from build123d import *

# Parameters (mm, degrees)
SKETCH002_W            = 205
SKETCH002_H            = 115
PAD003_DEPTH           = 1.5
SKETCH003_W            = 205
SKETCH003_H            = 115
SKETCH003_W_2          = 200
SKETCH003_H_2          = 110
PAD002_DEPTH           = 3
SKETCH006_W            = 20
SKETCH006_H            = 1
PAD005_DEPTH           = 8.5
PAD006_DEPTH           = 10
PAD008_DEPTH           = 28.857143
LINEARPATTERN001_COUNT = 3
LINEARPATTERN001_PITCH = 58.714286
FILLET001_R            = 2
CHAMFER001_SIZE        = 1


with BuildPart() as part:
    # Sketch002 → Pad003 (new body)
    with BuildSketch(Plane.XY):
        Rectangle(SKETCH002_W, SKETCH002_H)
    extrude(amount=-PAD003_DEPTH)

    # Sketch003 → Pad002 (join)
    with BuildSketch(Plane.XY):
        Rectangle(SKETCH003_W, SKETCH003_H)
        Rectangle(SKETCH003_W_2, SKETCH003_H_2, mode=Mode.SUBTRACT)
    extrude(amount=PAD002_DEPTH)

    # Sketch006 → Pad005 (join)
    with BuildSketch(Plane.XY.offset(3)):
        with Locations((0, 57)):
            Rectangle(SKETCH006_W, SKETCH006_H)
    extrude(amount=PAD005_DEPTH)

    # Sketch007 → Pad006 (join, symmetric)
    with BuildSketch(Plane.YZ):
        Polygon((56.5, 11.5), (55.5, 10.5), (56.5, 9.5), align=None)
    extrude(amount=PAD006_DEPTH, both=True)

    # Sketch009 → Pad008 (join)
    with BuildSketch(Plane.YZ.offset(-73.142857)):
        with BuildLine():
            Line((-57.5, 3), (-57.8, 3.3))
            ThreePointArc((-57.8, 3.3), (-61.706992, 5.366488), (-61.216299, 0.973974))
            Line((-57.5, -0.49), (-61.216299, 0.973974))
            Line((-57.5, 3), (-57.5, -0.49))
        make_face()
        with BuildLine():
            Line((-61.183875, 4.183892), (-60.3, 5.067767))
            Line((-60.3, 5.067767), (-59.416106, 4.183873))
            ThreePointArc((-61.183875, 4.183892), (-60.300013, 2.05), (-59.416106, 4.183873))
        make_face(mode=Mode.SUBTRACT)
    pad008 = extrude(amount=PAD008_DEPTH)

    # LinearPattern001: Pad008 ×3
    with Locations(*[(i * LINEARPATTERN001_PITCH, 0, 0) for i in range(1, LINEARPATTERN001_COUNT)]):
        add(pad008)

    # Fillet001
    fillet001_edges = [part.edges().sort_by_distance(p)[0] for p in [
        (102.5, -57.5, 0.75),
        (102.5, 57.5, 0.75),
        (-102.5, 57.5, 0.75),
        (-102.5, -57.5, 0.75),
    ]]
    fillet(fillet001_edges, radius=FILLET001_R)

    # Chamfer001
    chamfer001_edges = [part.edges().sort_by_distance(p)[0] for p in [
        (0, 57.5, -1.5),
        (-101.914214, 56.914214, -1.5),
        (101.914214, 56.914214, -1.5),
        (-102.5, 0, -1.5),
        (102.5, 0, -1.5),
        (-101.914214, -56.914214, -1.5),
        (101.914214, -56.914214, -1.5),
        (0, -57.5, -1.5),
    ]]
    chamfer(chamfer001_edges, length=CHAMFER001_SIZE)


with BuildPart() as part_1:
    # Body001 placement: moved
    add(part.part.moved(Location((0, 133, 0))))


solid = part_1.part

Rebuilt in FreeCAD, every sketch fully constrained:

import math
import FreeCAD as App
import Part
import Sketcher

V = App.Vector
Q = App.Units.Quantity


def edges_at(feature, points):
    """Names of the edges that pass closest to the given points."""
    edges = feature.Shape.Edges
    near = lambda p: min(range(len(edges)), key=lambda i: edges[i].distToShape(Part.Vertex(*p))[0])
    return sorted({f"Edge{near(p) + 1}" for p in points})

doc = App.newDocument("Part")
body = doc.addObject("PartDesign::Body", "Body")

# Sketch on XY plane
sketch1 = body.newObject("Sketcher::SketchObject", "Sketch")
sketch1.AttachmentSupport = (doc.getObject("XY_Plane"), [""])
sketch1.MapMode = "FlatFace"
sketch1.addGeometry(Part.LineSegment(V(-102, 58, 0), V(-102, -58, 0)), False)
sketch1.addGeometry(Part.LineSegment(V(-102, -58, 0), V(102, -58, 0)), False)
sketch1.addGeometry(Part.LineSegment(V(102, -58, 0), V(102, 58, 0)), False)
sketch1.addGeometry(Part.LineSegment(V(102, 58, 0), V(-102, 58, 0)), False)
sketch1.addConstraint(Sketcher.Constraint("Coincident", 0, 2, 1, 1))
sketch1.addConstraint(Sketcher.Constraint("Coincident", 1, 2, 2, 1))
sketch1.addConstraint(Sketcher.Constraint("Coincident", 2, 2, 3, 1))
sketch1.addConstraint(Sketcher.Constraint("Coincident", 3, 2, 0, 1))
sketch1.addConstraint(Sketcher.Constraint("Vertical", 0))
sketch1.addConstraint(Sketcher.Constraint("Horizontal", 1))
sketch1.addConstraint(Sketcher.Constraint("Vertical", 2))
sketch1.addConstraint(Sketcher.Constraint("Horizontal", 3))
sketch1.addConstraint(Sketcher.Constraint("Symmetric", 0, 2, 2, 2, -1, 1))
sketch1.addConstraint(Sketcher.Constraint("DistanceX", 1, 1, 1, 2, Q("205 mm")))
sketch1.addConstraint(Sketcher.Constraint("DistanceY", 0, 2, 0, 1, Q("115 mm")))
pad1 = body.newObject("PartDesign::Pad", "Pad")
pad1.Profile = sketch1
pad1.Length = 1.5
pad1.Reversed = True

# Sketch on XY plane
sketch2 = body.newObject("Sketcher::SketchObject", "Sketch001")
sketch2.AttachmentSupport = (doc.getObject("XY_Plane"), [""])
sketch2.MapMode = "FlatFace"
sketch2.addGeometry(Part.LineSegment(V(-102, 58, 0), V(-102, -58, 0)), False)
sketch2.addGeometry(Part.LineSegment(V(-102, -58, 0), V(102, -58, 0)), False)
sketch2.addGeometry(Part.LineSegment(V(102, -58, 0), V(102, 58, 0)), False)
sketch2.addGeometry(Part.LineSegment(V(102, 58, 0), V(-102, 58, 0)), False)
sketch2.addGeometry(Part.LineSegment(V(100, -55, 0), V(-100, -55, 0)), False)
sketch2.addGeometry(Part.LineSegment(V(-100, -55, 0), V(-100, 55, 0)), False)
sketch2.addGeometry(Part.LineSegment(V(-100, 55, 0), V(100, 55, 0)), False)
sketch2.addGeometry(Part.LineSegment(V(100, 55, 0), V(100, -55, 0)), False)
sketch2.addConstraint(Sketcher.Constraint("Coincident", 0, 2, 1, 1))
sketch2.addConstraint(Sketcher.Constraint("Coincident", 1, 2, 2, 1))
sketch2.addConstraint(Sketcher.Constraint("Coincident", 2, 2, 3, 1))
sketch2.addConstraint(Sketcher.Constraint("Coincident", 3, 2, 0, 1))
sketch2.addConstraint(Sketcher.Constraint("Coincident", 4, 2, 5, 1))
sketch2.addConstraint(Sketcher.Constraint("Coincident", 5, 2, 6, 1))
sketch2.addConstraint(Sketcher.Constraint("Coincident", 6, 2, 7, 1))
sketch2.addConstraint(Sketcher.Constraint("Coincident", 7, 2, 4, 1))
sketch2.addConstraint(Sketcher.Constraint("Vertical", 0))
sketch2.addConstraint(Sketcher.Constraint("Horizontal", 1))
sketch2.addConstraint(Sketcher.Constraint("Vertical", 2))
sketch2.addConstraint(Sketcher.Constraint("Horizontal", 3))
sketch2.addConstraint(Sketcher.Constraint("Horizontal", 4))
sketch2.addConstraint(Sketcher.Constraint("Vertical", 5))
sketch2.addConstraint(Sketcher.Constraint("Horizontal", 6))
sketch2.addConstraint(Sketcher.Constraint("Vertical", 7))
sketch2.addConstraint(Sketcher.Constraint("Symmetric", 0, 2, 2, 2, -1, 1))
sketch2.addConstraint(Sketcher.Constraint("Symmetric", 4, 2, 6, 2, -1, 1))
sketch2.addConstraint(Sketcher.Constraint("DistanceX", 1, 1, 1, 2, Q("205 mm")))
sketch2.addConstraint(Sketcher.Constraint("DistanceX", 4, 2, 4, 1, Q("200 mm")))
sketch2.addConstraint(Sketcher.Constraint("DistanceY", 0, 2, 0, 1, Q("115 mm")))
sketch2.addConstraint(Sketcher.Constraint("DistanceY", 5, 1, 5, 2, Q("110 mm")))
pad2 = body.newObject("PartDesign::Pad", "Pad001")
pad2.Profile = sketch2
pad2.Length = 3

# Sketch on XY plane
sketch3 = body.newObject("Sketcher::SketchObject", "Sketch002")
sketch3.AttachmentSupport = (doc.getObject("XY_Plane"), [""])
sketch3.MapMode = "FlatFace"
sketch3.AttachmentOffset = App.Placement(V(0, 0, 3), App.Rotation())
sketch3.addGeometry(Part.LineSegment(V(-10, 57.5, 0), V(-10, 56.5, 0)), False)
sketch3.addGeometry(Part.LineSegment(V(-10, 56.5, 0), V(10, 56.5, 0)), False)
sketch3.addGeometry(Part.LineSegment(V(10, 56.5, 0), V(10, 57.5, 0)), False)
sketch3.addGeometry(Part.LineSegment(V(10, 57.5, 0), V(-10, 57.5, 0)), False)
sketch3.addConstraint(Sketcher.Constraint("Coincident", 0, 2, 1, 1))
sketch3.addConstraint(Sketcher.Constraint("Coincident", 1, 2, 2, 1))
sketch3.addConstraint(Sketcher.Constraint("Coincident", 2, 2, 3, 1))
sketch3.addConstraint(Sketcher.Constraint("Coincident", 3, 2, 0, 1))
sketch3.addConstraint(Sketcher.Constraint("Vertical", 0))
sketch3.addConstraint(Sketcher.Constraint("Horizontal", 1))
sketch3.addConstraint(Sketcher.Constraint("Vertical", 2))
sketch3.addConstraint(Sketcher.Constraint("Horizontal", 3))
sketch3.addConstraint(Sketcher.Constraint("DistanceX", 1, 1, 1, 2, Q("20 mm")))
sketch3.addConstraint(Sketcher.Constraint("DistanceY", 0, 2, 0, 1, Q("1 mm")))
sketch3.addConstraint(Sketcher.Constraint("DistanceX", 0, 2, -1, 1, Q("10 mm")))
sketch3.addConstraint(Sketcher.Constraint("DistanceY", -1, 1, 0, 2, Q("56.5 mm")))
pad3 = body.newObject("PartDesign::Pad", "Pad002")
pad3.Profile = sketch3
pad3.Length = 8.5

# Sketch on YZ plane
sketch4 = body.newObject("Sketcher::SketchObject", "Sketch003")
sketch4.AttachmentSupport = (doc.getObject("YZ_Plane"), [""])
sketch4.MapMode = "FlatFace"
sketch4.addGeometry(Part.LineSegment(V(56.5, 11.5, 0), V(55.5, 10.5, 0)), False)
sketch4.addGeometry(Part.LineSegment(V(55.5, 10.5, 0), V(56.5, 9.5, 0)), False)
sketch4.addGeometry(Part.LineSegment(V(56.5, 9.5, 0), V(56.5, 11.5, 0)), False)
sketch4.addConstraint(Sketcher.Constraint("Coincident", 0, 2, 1, 1))
sketch4.addConstraint(Sketcher.Constraint("Coincident", 1, 2, 2, 1))
sketch4.addConstraint(Sketcher.Constraint("Coincident", 2, 2, 0, 1))
sketch4.addConstraint(Sketcher.Constraint("Vertical", 2))
sketch4.addConstraint(Sketcher.Constraint("Perpendicular", 0, 1))
sketch4.addConstraint(Sketcher.Constraint("Equal", 0, 1))
sketch4.addConstraint(Sketcher.Constraint("DistanceY", 2, 1, 2, 2, Q("2 mm")))
sketch4.addConstraint(Sketcher.Constraint("DistanceX", -1, 1, 0, 2, Q("55.5 mm")))
sketch4.addConstraint(Sketcher.Constraint("DistanceY", -1, 1, 0, 2, Q("10.5 mm")))
pad4 = body.newObject("PartDesign::Pad", "Pad003")
pad4.Profile = sketch4
pad4.Length = 20
pad4.Midplane = True

# Sketch on YZ plane
sketch5 = body.newObject("Sketcher::SketchObject", "Sketch004")
sketch5.AttachmentSupport = (doc.getObject("YZ_Plane"), [""])
sketch5.MapMode = "FlatFace"
sketch5.AttachmentOffset = App.Placement(V(0, 0, -73.142857), App.Rotation())
sketch5.addGeometry(Part.LineSegment(V(-57.5, 3, 0), V(-57.8, 3.3, 0)), False)
sketch5.addGeometry(Part.ArcOfCircle(Part.Circle(V(-60.3, 3.3, 0), V(0, 0, 1), 2.5), math.radians(0), math.radians(248)), False)
sketch5.addGeometry(Part.LineSegment(V(-61.22, 0.97, 0), V(-57.5, -0.49, 0)), False)
sketch5.addGeometry(Part.LineSegment(V(-57.5, -0.49, 0), V(-57.5, 3, 0)), False)
sketch5.addGeometry(Part.ArcOfCircle(Part.Circle(V(-60.3, 3.3, 0), V(0, 0, 1), 1.25), math.radians(135), math.radians(405)), False)
sketch5.addGeometry(Part.LineSegment(V(-61.18, 4.18, 0), V(-60.3, 5.07, 0)), False)
sketch5.addGeometry(Part.LineSegment(V(-60.3, 5.07, 0), V(-59.42, 4.18, 0)), False)
sketch5.addConstraint(Sketcher.Constraint("Coincident", 0, 2, 1, 1))
sketch5.addConstraint(Sketcher.Constraint("Tangent", 1, 2, 2, 1))
sketch5.addConstraint(Sketcher.Constraint("Coincident", 2, 2, 3, 1))
sketch5.addConstraint(Sketcher.Constraint("Coincident", 3, 2, 0, 1))
sketch5.addConstraint(Sketcher.Constraint("Coincident", 4, 1, 5, 1))
sketch5.addConstraint(Sketcher.Constraint("Coincident", 5, 2, 6, 1))
sketch5.addConstraint(Sketcher.Constraint("Coincident", 6, 2, 4, 2))
sketch5.addConstraint(Sketcher.Constraint("Vertical", 3))
sketch5.addConstraint(Sketcher.Constraint("Coincident", 4, 3, 1, 3))
sketch5.addConstraint(Sketcher.Constraint("Perpendicular", 0, 5))
sketch5.addConstraint(Sketcher.Constraint("Perpendicular", 5, 6))
sketch5.addConstraint(Sketcher.Constraint("Horizontal", 4, 3, 0, 2))
sketch5.addConstraint(Sketcher.Constraint("Vertical", 4, 3, 5, 2))
sketch5.addConstraint(Sketcher.Constraint("Radius", 1, Q("2.5 mm")))
sketch5.addConstraint(Sketcher.Constraint("Radius", 4, Q("1.25 mm")))
sketch5.addConstraint(Sketcher.Constraint("DistanceY", -1, 1, 3, 2, Q("3 mm")))
sketch5.addConstraint(Sketcher.Constraint("DistanceY", 3, 1, 3, 2, Q("3.49 mm")))
sketch5.addConstraint(Sketcher.Constraint("DistanceX", 1, 3, -1, 1, Q("60.3 mm")))
sketch5.addConstraint(Sketcher.Constraint("DistanceY", -1, 1, 1, 3, Q("3.3 mm")))
sketch5.addConstraint(Sketcher.Constraint("Distance", 5, Q("1.249988 mm")))
sketch5.addConstraint(Sketcher.Constraint("DistanceX", 4, 1, 6, 2, Q("1.767769 mm")))
pad5 = body.newObject("PartDesign::Pad", "Pad004")
pad5.Profile = sketch5
pad5.Length = 28.857143
doc.recompute()

linearpattern = body.newObject("PartDesign::LinearPattern", "LinearPattern")
linearpattern.Originals = [pad5]
linearpattern.Direction = (doc.getObject("X_Axis"), [""])
linearpattern.Mode = "offset"
linearpattern.Offset = 58.714286
linearpattern.Occurrences = 3
body.Tip = linearpattern
doc.recompute()

fillet = body.newObject("PartDesign::Fillet", "Fillet")
fillet.Base = (linearpattern, edges_at(linearpattern, [
    (102.5, -57.5, 0.75),
    (102.5, 57.5, 0.75),
    (-102.5, 57.5, 0.75),
    (-102.5, -57.5, 0.75),
]))
fillet.Radius = 2
doc.recompute()

chamfer = body.newObject("PartDesign::Chamfer", "Chamfer")
chamfer.Base = (fillet, edges_at(fillet, [
    (0, 57.5, -1.5),
    (-101.914, 56.914, -1.5),
    (101.914, 56.914, -1.5),
    (-102.5, 0, -1.5),
    (102.5, 0, -1.5),
    (-101.914, -56.914, -1.5),
    (101.914, -56.914, -1.5),
    (0, -57.5, -1.5),
]))
chamfer.Size = 1
body2 = doc.addObject("PartDesign::Body", "Body001")
doc.recompute()

body.Placement = App.Placement(V(0, 133, 0), App.Rotation(V(0, 0, 1), 0))
boolean = body2.newObject("PartDesign::Boolean", "Boolean")
boolean.Type = "Fuse"
boolean.addObjects([body])

doc.recompute()
